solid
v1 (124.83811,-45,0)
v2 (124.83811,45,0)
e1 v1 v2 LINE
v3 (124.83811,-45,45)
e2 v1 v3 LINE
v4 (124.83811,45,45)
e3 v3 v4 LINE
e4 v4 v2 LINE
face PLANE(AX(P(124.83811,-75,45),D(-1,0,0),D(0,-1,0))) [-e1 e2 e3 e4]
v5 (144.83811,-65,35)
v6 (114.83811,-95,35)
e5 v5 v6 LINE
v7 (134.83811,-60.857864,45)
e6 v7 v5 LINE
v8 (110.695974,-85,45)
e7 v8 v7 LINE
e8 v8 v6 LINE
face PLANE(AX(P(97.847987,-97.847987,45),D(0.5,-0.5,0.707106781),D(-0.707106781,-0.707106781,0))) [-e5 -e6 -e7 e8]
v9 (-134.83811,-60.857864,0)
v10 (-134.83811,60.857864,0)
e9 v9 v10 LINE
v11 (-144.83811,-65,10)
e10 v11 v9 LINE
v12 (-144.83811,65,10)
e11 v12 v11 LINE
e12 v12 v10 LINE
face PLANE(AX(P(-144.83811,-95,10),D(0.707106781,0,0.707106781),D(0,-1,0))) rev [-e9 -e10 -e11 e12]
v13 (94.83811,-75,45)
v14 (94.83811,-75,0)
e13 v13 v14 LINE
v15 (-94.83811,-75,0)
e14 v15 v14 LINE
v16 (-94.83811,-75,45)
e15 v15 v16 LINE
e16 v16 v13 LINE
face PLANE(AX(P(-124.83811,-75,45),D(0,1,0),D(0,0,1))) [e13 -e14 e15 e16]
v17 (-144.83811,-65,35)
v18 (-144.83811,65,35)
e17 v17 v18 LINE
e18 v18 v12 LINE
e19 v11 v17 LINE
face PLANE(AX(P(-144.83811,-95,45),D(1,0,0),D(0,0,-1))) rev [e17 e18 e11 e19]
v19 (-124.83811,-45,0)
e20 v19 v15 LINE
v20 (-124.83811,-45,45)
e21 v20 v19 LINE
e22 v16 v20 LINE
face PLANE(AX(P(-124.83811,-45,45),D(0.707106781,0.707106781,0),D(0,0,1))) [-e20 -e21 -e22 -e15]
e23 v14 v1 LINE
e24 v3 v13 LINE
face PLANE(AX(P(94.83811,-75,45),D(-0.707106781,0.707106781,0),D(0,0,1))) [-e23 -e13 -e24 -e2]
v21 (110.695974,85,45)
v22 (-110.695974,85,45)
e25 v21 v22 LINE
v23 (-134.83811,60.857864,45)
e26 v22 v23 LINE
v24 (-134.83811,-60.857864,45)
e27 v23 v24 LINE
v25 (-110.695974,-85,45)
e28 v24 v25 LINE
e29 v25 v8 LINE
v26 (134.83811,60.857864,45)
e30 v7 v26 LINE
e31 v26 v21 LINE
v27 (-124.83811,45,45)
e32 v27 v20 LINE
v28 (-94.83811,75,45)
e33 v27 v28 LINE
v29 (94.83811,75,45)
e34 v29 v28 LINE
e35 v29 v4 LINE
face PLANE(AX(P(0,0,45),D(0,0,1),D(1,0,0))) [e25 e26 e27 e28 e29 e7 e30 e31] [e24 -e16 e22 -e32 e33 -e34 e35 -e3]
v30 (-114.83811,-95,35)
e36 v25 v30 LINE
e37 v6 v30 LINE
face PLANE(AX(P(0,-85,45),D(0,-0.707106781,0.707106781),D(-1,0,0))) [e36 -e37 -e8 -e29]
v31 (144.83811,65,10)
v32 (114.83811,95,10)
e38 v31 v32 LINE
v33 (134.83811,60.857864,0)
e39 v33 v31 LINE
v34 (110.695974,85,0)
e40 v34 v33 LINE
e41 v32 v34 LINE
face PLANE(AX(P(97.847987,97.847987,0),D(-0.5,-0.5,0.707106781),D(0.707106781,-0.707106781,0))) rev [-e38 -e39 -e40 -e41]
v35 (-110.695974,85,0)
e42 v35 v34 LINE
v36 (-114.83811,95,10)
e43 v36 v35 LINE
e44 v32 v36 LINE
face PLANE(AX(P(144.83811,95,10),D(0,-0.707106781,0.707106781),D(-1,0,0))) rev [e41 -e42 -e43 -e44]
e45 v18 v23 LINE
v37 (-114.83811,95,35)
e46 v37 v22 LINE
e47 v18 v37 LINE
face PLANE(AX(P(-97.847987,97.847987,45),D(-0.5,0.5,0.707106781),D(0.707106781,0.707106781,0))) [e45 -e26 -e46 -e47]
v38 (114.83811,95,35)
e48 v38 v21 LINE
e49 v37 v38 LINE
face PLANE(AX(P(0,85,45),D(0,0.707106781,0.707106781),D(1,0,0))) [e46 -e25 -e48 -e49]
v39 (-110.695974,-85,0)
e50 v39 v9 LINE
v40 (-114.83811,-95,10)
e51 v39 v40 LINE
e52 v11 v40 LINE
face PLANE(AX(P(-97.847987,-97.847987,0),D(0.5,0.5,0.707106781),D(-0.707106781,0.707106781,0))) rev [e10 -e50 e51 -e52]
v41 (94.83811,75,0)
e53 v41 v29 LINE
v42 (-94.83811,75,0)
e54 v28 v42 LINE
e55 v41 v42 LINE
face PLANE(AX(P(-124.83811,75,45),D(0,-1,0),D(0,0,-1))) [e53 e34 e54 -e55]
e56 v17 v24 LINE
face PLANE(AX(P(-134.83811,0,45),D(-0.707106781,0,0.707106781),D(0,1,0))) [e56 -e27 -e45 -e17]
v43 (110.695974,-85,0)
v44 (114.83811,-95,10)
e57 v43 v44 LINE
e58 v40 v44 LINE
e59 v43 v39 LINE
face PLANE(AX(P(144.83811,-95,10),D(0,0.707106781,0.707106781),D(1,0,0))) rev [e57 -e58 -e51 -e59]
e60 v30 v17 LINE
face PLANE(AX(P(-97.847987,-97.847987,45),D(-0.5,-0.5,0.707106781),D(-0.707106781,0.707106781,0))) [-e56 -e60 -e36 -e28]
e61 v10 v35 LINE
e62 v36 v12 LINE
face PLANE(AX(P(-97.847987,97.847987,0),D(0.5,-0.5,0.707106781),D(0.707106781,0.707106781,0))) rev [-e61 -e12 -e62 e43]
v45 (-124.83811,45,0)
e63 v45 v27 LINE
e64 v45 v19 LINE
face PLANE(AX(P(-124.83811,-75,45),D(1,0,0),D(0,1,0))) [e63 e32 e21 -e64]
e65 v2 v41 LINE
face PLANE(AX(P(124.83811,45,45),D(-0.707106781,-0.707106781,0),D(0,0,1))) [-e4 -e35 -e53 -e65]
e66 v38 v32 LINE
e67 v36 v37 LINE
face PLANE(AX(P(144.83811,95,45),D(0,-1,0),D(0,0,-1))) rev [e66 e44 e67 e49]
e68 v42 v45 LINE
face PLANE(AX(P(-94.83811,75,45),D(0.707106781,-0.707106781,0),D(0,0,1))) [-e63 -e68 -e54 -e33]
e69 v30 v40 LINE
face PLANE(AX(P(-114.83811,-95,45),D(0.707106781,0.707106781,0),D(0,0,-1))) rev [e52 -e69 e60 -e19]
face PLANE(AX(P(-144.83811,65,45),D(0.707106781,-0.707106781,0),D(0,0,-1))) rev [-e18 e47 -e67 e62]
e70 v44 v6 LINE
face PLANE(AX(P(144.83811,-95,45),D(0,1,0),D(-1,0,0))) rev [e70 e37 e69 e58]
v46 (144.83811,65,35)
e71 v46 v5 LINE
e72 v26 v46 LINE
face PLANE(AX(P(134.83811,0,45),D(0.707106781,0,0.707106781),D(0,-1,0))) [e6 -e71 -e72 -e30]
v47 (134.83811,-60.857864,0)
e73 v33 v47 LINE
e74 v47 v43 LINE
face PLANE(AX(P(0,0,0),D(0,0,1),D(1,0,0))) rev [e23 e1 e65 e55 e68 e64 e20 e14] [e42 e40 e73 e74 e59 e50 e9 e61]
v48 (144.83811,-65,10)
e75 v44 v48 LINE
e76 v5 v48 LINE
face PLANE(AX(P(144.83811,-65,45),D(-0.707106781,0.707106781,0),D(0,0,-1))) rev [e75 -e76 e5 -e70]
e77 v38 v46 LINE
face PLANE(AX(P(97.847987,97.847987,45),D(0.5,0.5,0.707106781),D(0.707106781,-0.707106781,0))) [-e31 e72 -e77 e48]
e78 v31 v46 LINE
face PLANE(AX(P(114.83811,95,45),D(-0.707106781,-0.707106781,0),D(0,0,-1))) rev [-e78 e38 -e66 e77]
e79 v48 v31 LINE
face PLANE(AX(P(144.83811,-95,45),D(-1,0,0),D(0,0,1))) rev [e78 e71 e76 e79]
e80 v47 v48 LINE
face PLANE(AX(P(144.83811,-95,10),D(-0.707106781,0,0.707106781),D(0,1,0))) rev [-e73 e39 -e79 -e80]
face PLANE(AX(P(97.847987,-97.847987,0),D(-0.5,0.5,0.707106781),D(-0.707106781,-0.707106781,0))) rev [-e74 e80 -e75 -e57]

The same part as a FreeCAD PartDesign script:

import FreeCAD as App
import Part
import Sketcher
from FreeCAD import Vector


def edges_at(feature, points):
    """Names of the edges that pass closest to the given points."""
    edges = feature.Shape.Edges
    near = lambda p: min(range(len(edges)), key=lambda i: edges[i].distToShape(Part.Vertex(*p))[0])
    return sorted({f"Edge{near(p) + 1}" for p in points})

doc = App.newDocument("Part")
body = doc.addObject("PartDesign::Body", "Body")

sketch1 = body.newObject("Sketcher::SketchObject", "Sketch")
sketch1.AttachmentSupport = (doc.getObject("XY_Plane"), [""])
sketch1.MapMode = "FlatFace"
sketch1.addGeometry([
    Part.LineSegment(Vector(-145, 95, 0), Vector(-145, -95, 0)),
    Part.LineSegment(Vector(-145, -95, 0), Vector(145, -95, 0)),
    Part.LineSegment(Vector(145, -95, 0), Vector(145, 95, 0)),
    Part.LineSegment(Vector(145, 95, 0), Vector(-145, 95, 0)),
    Part.LineSegment(Vector(125, -75, 0), Vector(-125, -75, 0)),
    Part.LineSegment(Vector(-125, -75, 0), Vector(-125, 75, 0)),
    Part.LineSegment(Vector(-125, 75, 0), Vector(125, 75, 0)),
    Part.LineSegment(Vector(125, 75, 0), Vector(125, -75, 0)),
], False)
sketch1.addConstraint([
    Sketcher.Constraint("Coincident", 0, 2, 1, 1),
    Sketcher.Constraint("Coincident", 1, 2, 2, 1),
    Sketcher.Constraint("Coincident", 2, 2, 3, 1),
    Sketcher.Constraint("Coincident", 3, 2, 0, 1),
    Sketcher.Constraint("Coincident", 4, 2, 5, 1),
    Sketcher.Constraint("Coincident", 5, 2, 6, 1),
    Sketcher.Constraint("Coincident", 6, 2, 7, 1),
    Sketcher.Constraint("Coincident", 7, 2, 4, 1),
    Sketcher.Constraint("Vertical", 0),
    Sketcher.Constraint("Horizontal", 1),
    Sketcher.Constraint("Vertical", 2),
    Sketcher.Constraint("Horizontal", 3),
    Sketcher.Constraint("Horizontal", 4),
    Sketcher.Constraint("Vertical", 5),
    Sketcher.Constraint("Horizontal", 6),
    Sketcher.Constraint("Vertical", 7),
    Sketcher.Constraint("Symmetric", 0, 2, 2, 2, -1, 1),
    Sketcher.Constraint("Symmetric", 4, 2, 6, 2, -1, 1),
    Sketcher.Constraint("DistanceY", 0, 2, 0, 1, 190.0),
    Sketcher.Constraint("DistanceY", 5, 1, 5, 2, 150.0),
    Sketcher.Constraint("DistanceX", 0, 2, 4, 2, 20.0),
    Sketcher.Constraint("DistanceX", 1, 1, 1, 2, 289.676219),
])
pad1 = body.newObject("PartDesign::Pad", "Pad")
pad1.Profile = sketch1
pad1.Length = 45
doc.recompute()

chamfer = body.newObject("PartDesign::Chamfer", "Chamfer")
chamfer.Base = (pad1, edges_at(pad1, [
    (124.838, -75, 22.5),
    (124.838, 75, 22.5),
    (-124.838, 75, 22.5),
    (-124.838, -75, 22.5),
    (-144.838, 95, 22.5),
    (144.838, 95, 22.5),
    (144.838, -95, 22.5),
    (-144.838, -95, 22.5),
]))
chamfer.Size = 30
doc.recompute()

chamfer2 = body.newObject("PartDesign::Chamfer", "Chamfer001")
chamfer2.Base = (chamfer, edges_at(chamfer, [
    (144.838, 0, 0),
    (144.838, 0, 45),
    (-144.838, 0, 0),
    (0, 95, 0),
    (0, -95, 0),
    (-129.838, 80, 0),
    (-129.838, -80, 0),
    (129.838, 80, 0),
    (129.838, -80, 0),
    (0, -95, 45),
    (-144.838, 0, 45),
    (0, 95, 45),
    (-129.838, 80, 45),
    (-129.838, -80, 45),
    (129.838, 80, 45),
    (129.838, -80, 45),
]))
chamfer2.Size = 10

doc.recompute()
